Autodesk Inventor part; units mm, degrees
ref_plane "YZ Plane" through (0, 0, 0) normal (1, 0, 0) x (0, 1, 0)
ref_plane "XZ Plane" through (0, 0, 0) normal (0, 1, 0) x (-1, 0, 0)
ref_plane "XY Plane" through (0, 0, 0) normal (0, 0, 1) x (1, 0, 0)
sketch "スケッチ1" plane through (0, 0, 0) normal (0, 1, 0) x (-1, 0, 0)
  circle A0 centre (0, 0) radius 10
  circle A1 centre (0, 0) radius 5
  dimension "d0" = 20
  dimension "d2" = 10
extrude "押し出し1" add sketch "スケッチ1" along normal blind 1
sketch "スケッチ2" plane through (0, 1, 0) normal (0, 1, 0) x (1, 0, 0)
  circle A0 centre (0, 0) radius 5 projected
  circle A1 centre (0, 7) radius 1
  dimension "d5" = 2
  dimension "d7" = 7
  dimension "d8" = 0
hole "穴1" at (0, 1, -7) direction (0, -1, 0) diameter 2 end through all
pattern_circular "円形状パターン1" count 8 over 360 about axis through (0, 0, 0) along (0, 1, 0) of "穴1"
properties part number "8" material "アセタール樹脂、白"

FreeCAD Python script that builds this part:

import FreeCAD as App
import Part
import Sketcher

V = App.Vector

doc = App.newDocument("Part")
body = doc.addObject("PartDesign::Body", "Body")

sketch1 = doc.addObject("Sketcher::SketchObject", "Sketch")
body.addObject(sketch1)
sketch1.AttachmentSupport = (doc.XZ_Plane, [""])
sketch1.MapMode = "FlatFace"
sketch1.addGeometry(Part.Circle(V(0, 0, 0), V(0, 0, 1), 10), False)
sketch1.addGeometry(Part.Circle(V(0, 0, 0), V(0, 0, 1), 5), False)
sketch1.addConstraint(Sketcher.Constraint("Coincident", 0, 3, -1, 1))
sketch1.addConstraint(Sketcher.Constraint("Coincident", 1, 3, -1, 1))
sketch1.addConstraint(Sketcher.Constraint("Diameter", 0, 20.0))
sketch1.addConstraint(Sketcher.Constraint("Diameter", 1, 10.0))
pad1 = doc.addObject("PartDesign::Pad", "Pad")
body.addObject(pad1)
pad1.Profile = sketch1
pad1.Length = 1
pad1.Reversed = True

sketch2 = doc.addObject("Sketcher::SketchObject", "Sketch001")
body.addObject(sketch2)
sketch2.AttachmentSupport = (doc.XZ_Plane, [""])
sketch2.MapMode = "FlatFace"
sketch2.AttachmentOffset = App.Placement(V(0, 0, -1), App.Rotation())
sketch2.addGeometry(Part.Circle(V(0, -7, 0), V(0, 0, 1), 1), False)
sketch2.addConstraint(Sketcher.Constraint("PointOnObject", 0, 3, -2))
sketch2.addConstraint(Sketcher.Constraint("Diameter", 0, 2.0))
sketch2.addConstraint(Sketcher.Constraint("DistanceY", 0, 3, -1, 1, 7.0))
doc.recompute()
hole = doc.addObject("PartDesign::Hole", "Hole")
body.addObject(hole)
hole.Profile = sketch2
hole.ThreadType = "None"
hole.Diameter = 2
hole.DepthType = "ThroughAll"
hole.Reversed = True
doc.recompute()

polarpattern = doc.addObject("PartDesign::PolarPattern", "PolarPattern")
body.addObject(polarpattern)
polarpattern.Originals = [hole]
polarpattern.Axis = (doc.Y_Axis, [""])
polarpattern.Angle = 360
polarpattern.Occurrences = 8
body.Tip = polarpattern

doc.recompute()
